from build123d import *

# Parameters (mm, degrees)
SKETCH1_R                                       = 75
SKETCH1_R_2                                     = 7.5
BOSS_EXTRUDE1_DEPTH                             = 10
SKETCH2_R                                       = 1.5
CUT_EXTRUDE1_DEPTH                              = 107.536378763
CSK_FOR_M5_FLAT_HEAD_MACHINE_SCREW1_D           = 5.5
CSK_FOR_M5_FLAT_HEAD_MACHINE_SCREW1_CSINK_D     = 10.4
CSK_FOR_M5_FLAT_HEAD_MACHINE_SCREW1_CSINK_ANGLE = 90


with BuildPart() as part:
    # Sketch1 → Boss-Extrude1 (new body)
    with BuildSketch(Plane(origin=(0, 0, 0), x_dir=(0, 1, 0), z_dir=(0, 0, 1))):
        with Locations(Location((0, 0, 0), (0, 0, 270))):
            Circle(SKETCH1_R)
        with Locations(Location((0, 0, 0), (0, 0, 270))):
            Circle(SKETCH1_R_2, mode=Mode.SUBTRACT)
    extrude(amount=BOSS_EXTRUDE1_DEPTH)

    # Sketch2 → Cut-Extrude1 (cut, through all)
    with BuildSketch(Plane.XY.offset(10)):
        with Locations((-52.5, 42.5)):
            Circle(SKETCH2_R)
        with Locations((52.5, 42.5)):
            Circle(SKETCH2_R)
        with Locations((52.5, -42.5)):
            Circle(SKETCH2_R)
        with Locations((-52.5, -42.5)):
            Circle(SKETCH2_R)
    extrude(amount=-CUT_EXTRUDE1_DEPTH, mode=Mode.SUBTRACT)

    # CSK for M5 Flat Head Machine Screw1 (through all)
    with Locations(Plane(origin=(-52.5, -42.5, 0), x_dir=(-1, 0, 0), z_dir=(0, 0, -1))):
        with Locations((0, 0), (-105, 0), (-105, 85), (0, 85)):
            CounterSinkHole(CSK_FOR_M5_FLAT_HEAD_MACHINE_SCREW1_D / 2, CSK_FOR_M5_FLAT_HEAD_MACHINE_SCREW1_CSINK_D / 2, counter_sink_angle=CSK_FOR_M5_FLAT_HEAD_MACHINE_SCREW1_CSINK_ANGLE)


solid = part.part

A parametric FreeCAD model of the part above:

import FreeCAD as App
import Part
import Sketcher

V = App.Vector
Q = App.Units.Quantity

doc = App.newDocument("Part")
body = doc.addObject("PartDesign::Body", "Body")

sketch1 = body.newObject("Sketcher::SketchObject", "Sketch")
sketch1.AttachmentSupport = (doc.getObject("XY_Plane"), [""])
sketch1.MapMode = "FlatFace"
sketch1.addGeometry(Part.Circle(V(0, 0, 0), V(0, 0, 1), 75), False)
sketch1.addGeometry(Part.Circle(V(0, 0, 0), V(0, 0, 1), 7.5), False)
sketch1.addConstraint(Sketcher.Constraint("Coincident", 0, 3, -1, 1))
sketch1.addConstraint(Sketcher.Constraint("Coincident", 1, 3, -1, 1))
sketch1.addConstraint(Sketcher.Constraint("Diameter", 0, Q("150 mm")))
sketch1.addConstraint(Sketcher.Constraint("Diameter", 1, Q("15 mm")))
pad1 = body.newObject("PartDesign::Pad", "Pad")
pad1.Profile = sketch1
pad1.Length = 10

sketch2 = body.newObject("Sketcher::SketchObject", "Sketch001")
sketch2.AttachmentSupport = (doc.getObject("XY_Plane"), [""])
sketch2.MapMode = "FlatFace"
sketch2.AttachmentOffset = App.Placement(V(0, 0, 10), App.Rotation())
sketch2.addGeometry(Part.Circle(V(-52.5, 42.5, 0), V(0, 0, 1), 1.5), False)
sketch2.addGeometry(Part.Circle(V(52.5, 42.5, 0), V(0, 0, 1), 1.5), False)
sketch2.addGeometry(Part.Circle(V(52.5, -42.5, 0), V(0, 0, 1), 1.5), False)
sketch2.addGeometry(Part.Circle(V(-52.5, -42.5, 0), V(0, 0, 1), 1.5), False)
sketch2.addConstraint(Sketcher.Constraint("Equal", 0, 1))
sketch2.addConstraint(Sketcher.Constraint("Equal", 1, 2))
sketch2.addConstraint(Sketcher.Constraint("Equal", 2, 3))
sketch2.addConstraint(Sketcher.Constraint("Symmetric", 0, 3, 2, 3, -1, 1))
sketch2.addConstraint(Sketcher.Constraint("Symmetric", 1, 3, 3, 3, -1, 1))
sketch2.addConstraint(Sketcher.Constraint("Symmetric", 0, 3, 1, 3, -2))
sketch2.addConstraint(Sketcher.Constraint("Diameter", 0, Q("3 mm")))
sketch2.addConstraint(Sketcher.Constraint("DistanceX", 0, 3, 1, 3, Q("105 mm")))
sketch2.addConstraint(Sketcher.Constraint("DistanceY", 2, 3, 1, 3, Q("85 mm")))
pocket1 = body.newObject("PartDesign::Pocket", "Pocket")
pocket1.Profile = sketch2
pocket1.Type = "ThroughAll"

sketch3 = body.newObject("Sketcher::SketchObject", "Sketch002")
sketch3.AttachmentSupport = (doc.getObject("XY_Plane"), [""])
sketch3.MapMode = "FlatFace"
sketch3.addGeometry(Part.Circle(V(-52.5, -42.5, 0), V(0, 0, 1), 2.75), False)
sketch3.addGeometry(Part.Circle(V(52.5, -42.5, 0), V(0, 0, 1), 2.75), False)
sketch3.addGeometry(Part.Circle(V(52.5, 42.5, 0), V(0, 0, 1), 2.75), False)
sketch3.addGeometry(Part.Circle(V(-52.5, 42.5, 0), V(0, 0, 1), 2.75), False)
sketch3.addConstraint(Sketcher.Constraint("Equal", 0, 1))
sketch3.addConstraint(Sketcher.Constraint("Equal", 1, 2))
sketch3.addConstraint(Sketcher.Constraint("Equal", 2, 3))
sketch3.addConstraint(Sketcher.Constraint("Symmetric", 0, 3, 2, 3, -1, 1))
sketch3.addConstraint(Sketcher.Constraint("Symmetric", 1, 3, 3, 3, -1, 1))
sketch3.addConstraint(Sketcher.Constraint("Symmetric", 0, 3, 1, 3, -2))
sketch3.addConstraint(Sketcher.Constraint("Diameter", 0, Q("5.5 mm")))
sketch3.addConstraint(Sketcher.Constraint("DistanceX", 0, 3, 1, 3, Q("105 mm")))
sketch3.addConstraint(Sketcher.Constraint("DistanceY", 1, 3, 2, 3, Q("85 mm")))
doc.recompute()
hole = body.newObject("PartDesign::Hole", "Hole")
hole.Profile = sketch3
hole.ThreadType = "None"
hole.Diameter = 5.5
hole.DepthType = "ThroughAll"
hole.HoleCutType = "Countersink"
hole.HoleCutDiameter = 10.4
hole.HoleCutCountersinkAngle = 90
hole.Reversed = True

doc.recompute()
